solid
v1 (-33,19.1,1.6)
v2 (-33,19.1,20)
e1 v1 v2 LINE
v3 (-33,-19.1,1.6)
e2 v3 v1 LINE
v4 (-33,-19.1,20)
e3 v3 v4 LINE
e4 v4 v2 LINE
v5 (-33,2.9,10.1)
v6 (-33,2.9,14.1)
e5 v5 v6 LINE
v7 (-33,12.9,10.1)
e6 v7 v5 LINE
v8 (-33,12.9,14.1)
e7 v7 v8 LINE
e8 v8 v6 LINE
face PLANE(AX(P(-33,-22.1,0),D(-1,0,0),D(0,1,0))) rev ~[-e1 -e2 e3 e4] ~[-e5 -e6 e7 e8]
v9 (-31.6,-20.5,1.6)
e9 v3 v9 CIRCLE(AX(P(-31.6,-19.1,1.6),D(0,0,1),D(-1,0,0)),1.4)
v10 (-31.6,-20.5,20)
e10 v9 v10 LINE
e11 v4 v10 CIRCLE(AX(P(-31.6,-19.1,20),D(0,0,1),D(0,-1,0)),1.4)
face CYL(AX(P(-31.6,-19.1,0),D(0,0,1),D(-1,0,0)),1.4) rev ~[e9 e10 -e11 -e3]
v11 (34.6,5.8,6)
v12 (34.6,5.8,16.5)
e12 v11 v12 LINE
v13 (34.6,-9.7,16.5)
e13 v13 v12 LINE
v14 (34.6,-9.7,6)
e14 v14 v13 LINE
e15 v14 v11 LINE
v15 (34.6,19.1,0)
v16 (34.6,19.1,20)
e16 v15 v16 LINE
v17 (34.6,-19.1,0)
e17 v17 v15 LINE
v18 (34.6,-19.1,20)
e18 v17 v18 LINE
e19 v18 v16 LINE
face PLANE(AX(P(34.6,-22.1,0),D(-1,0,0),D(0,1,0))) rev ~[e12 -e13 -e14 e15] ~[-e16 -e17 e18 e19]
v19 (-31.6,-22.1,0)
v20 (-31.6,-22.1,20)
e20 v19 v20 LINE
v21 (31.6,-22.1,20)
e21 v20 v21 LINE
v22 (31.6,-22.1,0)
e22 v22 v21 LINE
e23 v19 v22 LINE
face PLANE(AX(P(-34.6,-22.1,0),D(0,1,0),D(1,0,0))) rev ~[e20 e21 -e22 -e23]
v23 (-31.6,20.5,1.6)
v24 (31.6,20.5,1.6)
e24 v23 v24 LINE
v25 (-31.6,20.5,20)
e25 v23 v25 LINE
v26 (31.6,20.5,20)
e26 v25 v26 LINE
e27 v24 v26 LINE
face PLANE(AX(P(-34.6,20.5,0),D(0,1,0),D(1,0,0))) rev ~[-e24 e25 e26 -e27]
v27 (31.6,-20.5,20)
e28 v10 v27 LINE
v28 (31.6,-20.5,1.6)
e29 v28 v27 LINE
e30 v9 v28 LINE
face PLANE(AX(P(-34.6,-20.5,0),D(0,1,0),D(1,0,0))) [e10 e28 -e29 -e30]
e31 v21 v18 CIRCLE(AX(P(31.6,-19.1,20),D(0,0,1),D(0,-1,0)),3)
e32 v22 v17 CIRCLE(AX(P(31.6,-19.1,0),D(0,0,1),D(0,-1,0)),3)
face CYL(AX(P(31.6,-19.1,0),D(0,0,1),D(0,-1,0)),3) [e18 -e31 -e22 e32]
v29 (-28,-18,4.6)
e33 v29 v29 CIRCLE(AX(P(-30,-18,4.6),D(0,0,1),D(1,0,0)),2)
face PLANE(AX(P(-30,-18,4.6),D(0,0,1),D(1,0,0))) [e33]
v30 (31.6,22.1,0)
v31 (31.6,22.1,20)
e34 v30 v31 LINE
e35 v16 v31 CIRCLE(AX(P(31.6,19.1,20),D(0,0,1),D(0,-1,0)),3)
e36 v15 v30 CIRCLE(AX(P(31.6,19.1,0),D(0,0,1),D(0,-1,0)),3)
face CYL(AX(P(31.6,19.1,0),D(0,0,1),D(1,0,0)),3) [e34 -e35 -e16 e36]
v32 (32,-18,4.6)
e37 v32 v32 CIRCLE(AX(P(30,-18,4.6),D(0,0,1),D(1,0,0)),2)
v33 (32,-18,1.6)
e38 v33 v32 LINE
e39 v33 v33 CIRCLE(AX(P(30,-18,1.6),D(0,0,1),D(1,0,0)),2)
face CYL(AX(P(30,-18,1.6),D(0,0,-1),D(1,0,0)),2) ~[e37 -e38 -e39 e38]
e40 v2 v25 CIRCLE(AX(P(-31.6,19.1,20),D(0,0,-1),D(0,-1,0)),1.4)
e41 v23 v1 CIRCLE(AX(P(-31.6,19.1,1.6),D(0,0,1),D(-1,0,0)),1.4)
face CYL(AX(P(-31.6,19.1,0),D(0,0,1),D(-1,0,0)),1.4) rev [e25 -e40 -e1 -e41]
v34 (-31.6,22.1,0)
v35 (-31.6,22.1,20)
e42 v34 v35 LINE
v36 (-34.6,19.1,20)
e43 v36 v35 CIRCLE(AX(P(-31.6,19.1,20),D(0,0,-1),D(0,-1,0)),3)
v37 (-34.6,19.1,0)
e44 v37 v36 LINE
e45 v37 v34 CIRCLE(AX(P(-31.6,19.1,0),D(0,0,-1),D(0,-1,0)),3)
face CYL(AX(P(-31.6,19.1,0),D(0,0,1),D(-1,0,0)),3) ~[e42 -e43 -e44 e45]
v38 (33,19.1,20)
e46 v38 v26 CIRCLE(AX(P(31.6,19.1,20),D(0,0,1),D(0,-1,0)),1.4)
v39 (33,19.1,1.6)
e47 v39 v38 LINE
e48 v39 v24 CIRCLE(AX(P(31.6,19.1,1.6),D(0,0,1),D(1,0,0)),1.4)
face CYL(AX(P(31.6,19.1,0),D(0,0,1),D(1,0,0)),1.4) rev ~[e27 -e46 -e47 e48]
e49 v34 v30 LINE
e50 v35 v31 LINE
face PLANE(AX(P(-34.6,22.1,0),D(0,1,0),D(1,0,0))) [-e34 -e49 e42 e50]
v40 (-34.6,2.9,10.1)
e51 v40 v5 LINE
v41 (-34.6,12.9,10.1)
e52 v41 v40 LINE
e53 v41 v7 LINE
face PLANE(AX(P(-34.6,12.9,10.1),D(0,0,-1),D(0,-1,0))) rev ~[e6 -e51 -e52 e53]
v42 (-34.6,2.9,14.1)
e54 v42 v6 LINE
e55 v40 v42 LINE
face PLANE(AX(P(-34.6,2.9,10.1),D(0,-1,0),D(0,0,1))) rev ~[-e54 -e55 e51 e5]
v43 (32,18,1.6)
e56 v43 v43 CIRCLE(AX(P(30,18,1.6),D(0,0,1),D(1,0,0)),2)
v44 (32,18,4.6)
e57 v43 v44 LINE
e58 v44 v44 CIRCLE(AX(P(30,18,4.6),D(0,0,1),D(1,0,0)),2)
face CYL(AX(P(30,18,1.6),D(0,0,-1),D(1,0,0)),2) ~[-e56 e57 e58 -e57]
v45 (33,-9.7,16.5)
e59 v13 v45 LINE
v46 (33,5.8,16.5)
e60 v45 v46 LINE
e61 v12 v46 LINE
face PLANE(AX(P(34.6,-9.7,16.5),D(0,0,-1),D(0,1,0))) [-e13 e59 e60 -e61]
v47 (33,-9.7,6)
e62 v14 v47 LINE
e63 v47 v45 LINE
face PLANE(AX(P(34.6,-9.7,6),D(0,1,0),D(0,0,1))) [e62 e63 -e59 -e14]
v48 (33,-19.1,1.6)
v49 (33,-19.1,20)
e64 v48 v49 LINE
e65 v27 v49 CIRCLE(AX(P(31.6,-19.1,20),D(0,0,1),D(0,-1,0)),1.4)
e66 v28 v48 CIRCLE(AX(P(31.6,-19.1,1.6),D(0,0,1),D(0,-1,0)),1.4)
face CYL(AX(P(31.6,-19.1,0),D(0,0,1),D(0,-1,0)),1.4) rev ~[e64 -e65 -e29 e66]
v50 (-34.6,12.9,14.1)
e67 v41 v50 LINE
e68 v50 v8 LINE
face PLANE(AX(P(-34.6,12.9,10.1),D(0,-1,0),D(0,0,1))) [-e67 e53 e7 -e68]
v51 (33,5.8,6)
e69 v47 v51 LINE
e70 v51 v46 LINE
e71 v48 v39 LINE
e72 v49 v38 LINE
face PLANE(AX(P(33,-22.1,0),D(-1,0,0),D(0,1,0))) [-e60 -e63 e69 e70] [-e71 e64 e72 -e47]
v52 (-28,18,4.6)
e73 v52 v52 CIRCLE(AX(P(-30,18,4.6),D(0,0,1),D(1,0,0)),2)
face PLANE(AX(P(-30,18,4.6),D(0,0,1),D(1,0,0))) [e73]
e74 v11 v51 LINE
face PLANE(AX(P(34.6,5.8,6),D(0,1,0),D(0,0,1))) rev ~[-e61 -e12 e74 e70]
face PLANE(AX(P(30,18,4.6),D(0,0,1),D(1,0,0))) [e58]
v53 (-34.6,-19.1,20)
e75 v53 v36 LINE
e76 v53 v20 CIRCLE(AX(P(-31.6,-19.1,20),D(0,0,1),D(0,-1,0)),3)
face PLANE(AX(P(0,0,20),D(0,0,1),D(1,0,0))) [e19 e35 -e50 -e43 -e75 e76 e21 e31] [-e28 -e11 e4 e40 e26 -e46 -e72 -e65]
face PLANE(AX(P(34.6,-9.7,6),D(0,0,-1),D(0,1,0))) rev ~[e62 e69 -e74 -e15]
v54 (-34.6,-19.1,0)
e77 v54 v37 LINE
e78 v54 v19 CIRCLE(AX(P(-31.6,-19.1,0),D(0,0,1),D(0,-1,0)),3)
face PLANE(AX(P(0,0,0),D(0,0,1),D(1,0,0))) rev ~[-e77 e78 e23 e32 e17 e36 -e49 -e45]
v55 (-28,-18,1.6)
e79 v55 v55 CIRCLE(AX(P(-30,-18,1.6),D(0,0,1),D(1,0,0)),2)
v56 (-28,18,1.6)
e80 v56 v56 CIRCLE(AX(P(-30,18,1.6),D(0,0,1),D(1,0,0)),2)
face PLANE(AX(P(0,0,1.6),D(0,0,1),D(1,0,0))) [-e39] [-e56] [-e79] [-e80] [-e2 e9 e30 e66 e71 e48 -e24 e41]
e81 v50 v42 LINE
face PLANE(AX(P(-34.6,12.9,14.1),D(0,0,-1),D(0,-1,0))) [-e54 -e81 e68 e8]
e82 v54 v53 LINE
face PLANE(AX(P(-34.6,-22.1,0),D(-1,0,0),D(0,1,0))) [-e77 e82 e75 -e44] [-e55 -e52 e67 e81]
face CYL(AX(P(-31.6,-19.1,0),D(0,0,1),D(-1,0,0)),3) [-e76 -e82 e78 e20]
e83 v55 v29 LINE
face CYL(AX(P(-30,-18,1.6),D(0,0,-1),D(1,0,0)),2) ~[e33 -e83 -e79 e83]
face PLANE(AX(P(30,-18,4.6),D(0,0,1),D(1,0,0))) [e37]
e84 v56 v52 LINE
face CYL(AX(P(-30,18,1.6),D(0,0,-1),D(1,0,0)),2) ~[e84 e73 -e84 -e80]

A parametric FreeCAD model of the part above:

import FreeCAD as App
import Part
import Sketcher
Q = App.Units.Quantity


def edges_at(feature, points):
    """Names of the edges that pass closest to the given points."""
    edges = feature.Shape.Edges
    near = lambda p: min(range(len(edges)), key=lambda i: edges[i].distToShape(Part.Vertex(*p))[0])
    return sorted({f"Edge{near(p) + 1}" for p in points})


def faces_at(feature, points):
    """Names of the faces that lie closest to the given points."""
    faces = feature.Shape.Faces
    near = lambda p: min(range(len(faces)), key=lambda i: faces[i].distToShape(Part.Vertex(*p))[0])
    return sorted({f"Face{near(p) + 1}" for p in points})


def add_polygon(sketch, points):
    """Adds a closed chain of lines whose ends are joined by coincident constraints."""
    first, n = sketch.GeometryCount, len(points)
    for a, b in zip(points, points[1:] + points[:1]):
        sketch.addGeometry(Part.LineSegment(App.Vector(*a, 0), App.Vector(*b, 0)), False)
    for i in range(n):
        sketch.addConstraint(Sketcher.Constraint("Coincident", first + i, 2, first + (i + 1) % n, 1))

doc = App.newDocument("Part")
params = doc.addObject("Spreadsheet::Sheet", "Params")
for row, (alias, value) in enumerate([
    ("sketch1_width", "69.2 mm"),
    ("sketch1_height", "44.2 mm"),
    ("pad1_length", "20 mm"),
    ("fillet_radius", "3 mm"),
    ("thickness_wall", "1.6 mm"),
    ("sketch2_diameter", "4 mm"),
    ("pad2_length", "3 mm"),
    ("sketch3_width", "15.5 mm"),
    ("sketch3_height", "10.5 mm"),
    ("pocket1_length", "1.6 mm"),
    ("sketch4_width", "10 mm"),
    ("sketch4_height", "4 mm"),
    ("pocket2_length", "1.6 mm"),
], start=1):
    params.set(f"A{row}", alias)
    params.set(f"B{row}", "=" + value)
    params.setAlias(f"B{row}", alias)

body = doc.addObject("PartDesign::Body", "Body")

# Sketch on XY plane
sketch1 = body.newObject("Sketcher::SketchObject", "Sketch")
sketch1.AttachmentSupport = (doc.getObject("XY_Plane"), [""])
sketch1.MapMode = "FlatFace"
add_polygon(sketch1, [(-34.6, 22.1), (-34.6, -22.1), (34.6, -22.1), (34.6, 22.1)])  # lines 0-3
sketch1.addConstraint(Sketcher.Constraint("Vertical", 0))
sketch1.addConstraint(Sketcher.Constraint("Horizontal", 1))
sketch1.addConstraint(Sketcher.Constraint("Vertical", 2))
sketch1.addConstraint(Sketcher.Constraint("Horizontal", 3))
sketch1.addConstraint(Sketcher.Constraint("Symmetric", 0, 2, 2, 2, -1, 1))
sketch1.addConstraint(Sketcher.Constraint("DistanceX", 1, 1, 1, 2, Q("69.2 mm")))
sketch1.addConstraint(Sketcher.Constraint("DistanceY", 0, 2, 0, 1, Q("44.2 mm")))
sketch1.setExpression("Constraints[9]", "Params.sketch1_width")
sketch1.setExpression("Constraints[10]", "Params.sketch1_height")
pad1 = body.newObject("PartDesign::Pad", "Pad")
pad1.Profile = sketch1
pad1.setExpression("Length", "Params.pad1_length")
doc.recompute()

fillet = body.newObject("PartDesign::Fillet", "Fillet")
fillet.Base = (pad1, edges_at(pad1, [
    (34.6, -22.1, 10),
    (34.6, 22.1, 10),
    (-34.6, 22.1, 10),
    (-34.6, -22.1, 10),
]))
fillet.setExpression("Radius", "Params.fillet_radius")
doc.recompute()

thickness = body.newObject("PartDesign::Thickness", "Thickness")
thickness.Base = (fillet, faces_at(fillet, [(0, 0, 20)]))
thickness.setExpression("Value", "Params.thickness_wall")
thickness.Reversed = True
thickness.Join = "Arc"

# Sketch on XY plane
sketch2 = body.newObject("Sketcher::SketchObject", "Sketch001")
sketch2.AttachmentSupport = (doc.getObject("XY_Plane"), [""])
sketch2.MapMode = "FlatFace"
sketch2.AttachmentOffset = App.Placement(App.Vector(0, 0, 1.6), App.Rotation())
sketch2.addGeometry(Part.Circle(App.Vector(-30, 18, 0), App.Vector(0, 0, 1), 2), False)
sketch2.addGeometry(Part.Circle(App.Vector(30, 18, 0), App.Vector(0, 0, 1), 2), False)
sketch2.addGeometry(Part.Circle(App.Vector(30, -18, 0), App.Vector(0, 0, 1), 2), False)
sketch2.addGeometry(Part.Circle(App.Vector(-30, -18, 0), App.Vector(0, 0, 1), 2), False)
sketch2.addConstraint(Sketcher.Constraint("Equal", 0, 1))
sketch2.addConstraint(Sketcher.Constraint("Equal", 1, 2))
sketch2.addConstraint(Sketcher.Constraint("Equal", 2, 3))
sketch2.addConstraint(Sketcher.Constraint("Symmetric", 0, 3, 2, 3, -1, 1))
sketch2.addConstraint(Sketcher.Constraint("Symmetric", 1, 3, 3, 3, -1, 1))
sketch2.addConstraint(Sketcher.Constraint("Symmetric", 0, 3, 1, 3, -2))
sketch2.addConstraint(Sketcher.Constraint("Diameter", 0, Q("4 mm")))
sketch2.addConstraint(Sketcher.Constraint("DistanceX", 0, 3, -1, 1, Q("30 mm")))
sketch2.addConstraint(Sketcher.Constraint("DistanceY", -1, 1, 0, 3, Q("18 mm")))
sketch2.setExpression("Constraints[6]", "Params.sketch2_diameter")
pad2 = body.newObject("PartDesign::Pad", "Pad001")
pad2.Profile = sketch2
pad2.setExpression("Length", "Params.pad2_length")

# Sketch on YZ plane
sketch3 = body.newObject("Sketcher::SketchObject", "Sketch002")
sketch3.AttachmentSupport = (doc.getObject("YZ_Plane"), [""])
sketch3.MapMode = "FlatFace"
sketch3.AttachmentOffset = App.Placement(App.Vector(0, 0, 34.6), App.Rotation())
add_polygon(sketch3, [(-9.7, 16.5), (-9.7, 6), (5.8, 6), (5.8, 16.5)])  # lines 0-3
sketch3.addConstraint(Sketcher.Constraint("Vertical", 0))
sketch3.addConstraint(Sketcher.Constraint("Horizontal", 1))
sketch3.addConstraint(Sketcher.Constraint("Vertical", 2))
sketch3.addConstraint(Sketcher.Constraint("Horizontal", 3))
sketch3.addConstraint(Sketcher.Constraint("DistanceX", 1, 1, 1, 2, Q("15.5 mm")))
sketch3.addConstraint(Sketcher.Constraint("DistanceY", 0, 2, 0, 1, Q("10.5 mm")))
sketch3.addConstraint(Sketcher.Constraint("DistanceY", -1, 1, 0, 2, Q("6 mm")))
sketch3.addConstraint(Sketcher.Constraint("DistanceX", 0, 2, -1, 1, Q("9.7 mm")))
sketch3.setExpression("Constraints[8]", "Params.sketch3_width")
sketch3.setExpression("Constraints[9]", "Params.sketch3_height")
pocket1 = body.newObject("PartDesign::Pocket", "Pocket")
pocket1.Profile = sketch3
pocket1.setExpression("Length", "Params.pocket1_length")

# Sketch on YZ plane
sketch4 = body.newObject("Sketcher::SketchObject", "Sketch003")
sketch4.AttachmentSupport = (doc.getObject("YZ_Plane"), [""])
sketch4.MapMode = "FlatFace"
sketch4.AttachmentOffset = App.Placement(App.Vector(0, 0, -34.6), App.Rotation())
add_polygon(sketch4, [(12.9, 14.1), (12.9, 10.1), (2.9, 10.1), (2.9, 14.1)])  # lines 0-3
sketch4.addConstraint(Sketcher.Constraint("Vertical", 0))
sketch4.addConstraint(Sketcher.Constraint("Horizontal", 1))
sketch4.addConstraint(Sketcher.Constraint("Vertical", 2))
sketch4.addConstraint(Sketcher.Constraint("Horizontal", 3))
sketch4.addConstraint(Sketcher.Constraint("DistanceX", 1, 2, 1, 1, Q("10 mm")))
sketch4.addConstraint(Sketcher.Constraint("DistanceY", 0, 2, 0, 1, Q("4 mm")))
sketch4.addConstraint(Sketcher.Constraint("DistanceX", -1, 1, 0, 2, Q("12.9 mm")))
sketch4.addConstraint(Sketcher.Constraint("DistanceY", -1, 1, 0, 2, Q("10.1 mm")))
sketch4.setExpression("Constraints[8]", "Params.sketch4_width")
sketch4.setExpression("Constraints[9]", "Params.sketch4_height")
pocket2 = body.newObject("PartDesign::Pocket", "Pocket001")
pocket2.Profile = sketch4
pocket2.setExpression("Length", "Params.pocket2_length")
pocket2.Reversed = True

doc.recompute()
